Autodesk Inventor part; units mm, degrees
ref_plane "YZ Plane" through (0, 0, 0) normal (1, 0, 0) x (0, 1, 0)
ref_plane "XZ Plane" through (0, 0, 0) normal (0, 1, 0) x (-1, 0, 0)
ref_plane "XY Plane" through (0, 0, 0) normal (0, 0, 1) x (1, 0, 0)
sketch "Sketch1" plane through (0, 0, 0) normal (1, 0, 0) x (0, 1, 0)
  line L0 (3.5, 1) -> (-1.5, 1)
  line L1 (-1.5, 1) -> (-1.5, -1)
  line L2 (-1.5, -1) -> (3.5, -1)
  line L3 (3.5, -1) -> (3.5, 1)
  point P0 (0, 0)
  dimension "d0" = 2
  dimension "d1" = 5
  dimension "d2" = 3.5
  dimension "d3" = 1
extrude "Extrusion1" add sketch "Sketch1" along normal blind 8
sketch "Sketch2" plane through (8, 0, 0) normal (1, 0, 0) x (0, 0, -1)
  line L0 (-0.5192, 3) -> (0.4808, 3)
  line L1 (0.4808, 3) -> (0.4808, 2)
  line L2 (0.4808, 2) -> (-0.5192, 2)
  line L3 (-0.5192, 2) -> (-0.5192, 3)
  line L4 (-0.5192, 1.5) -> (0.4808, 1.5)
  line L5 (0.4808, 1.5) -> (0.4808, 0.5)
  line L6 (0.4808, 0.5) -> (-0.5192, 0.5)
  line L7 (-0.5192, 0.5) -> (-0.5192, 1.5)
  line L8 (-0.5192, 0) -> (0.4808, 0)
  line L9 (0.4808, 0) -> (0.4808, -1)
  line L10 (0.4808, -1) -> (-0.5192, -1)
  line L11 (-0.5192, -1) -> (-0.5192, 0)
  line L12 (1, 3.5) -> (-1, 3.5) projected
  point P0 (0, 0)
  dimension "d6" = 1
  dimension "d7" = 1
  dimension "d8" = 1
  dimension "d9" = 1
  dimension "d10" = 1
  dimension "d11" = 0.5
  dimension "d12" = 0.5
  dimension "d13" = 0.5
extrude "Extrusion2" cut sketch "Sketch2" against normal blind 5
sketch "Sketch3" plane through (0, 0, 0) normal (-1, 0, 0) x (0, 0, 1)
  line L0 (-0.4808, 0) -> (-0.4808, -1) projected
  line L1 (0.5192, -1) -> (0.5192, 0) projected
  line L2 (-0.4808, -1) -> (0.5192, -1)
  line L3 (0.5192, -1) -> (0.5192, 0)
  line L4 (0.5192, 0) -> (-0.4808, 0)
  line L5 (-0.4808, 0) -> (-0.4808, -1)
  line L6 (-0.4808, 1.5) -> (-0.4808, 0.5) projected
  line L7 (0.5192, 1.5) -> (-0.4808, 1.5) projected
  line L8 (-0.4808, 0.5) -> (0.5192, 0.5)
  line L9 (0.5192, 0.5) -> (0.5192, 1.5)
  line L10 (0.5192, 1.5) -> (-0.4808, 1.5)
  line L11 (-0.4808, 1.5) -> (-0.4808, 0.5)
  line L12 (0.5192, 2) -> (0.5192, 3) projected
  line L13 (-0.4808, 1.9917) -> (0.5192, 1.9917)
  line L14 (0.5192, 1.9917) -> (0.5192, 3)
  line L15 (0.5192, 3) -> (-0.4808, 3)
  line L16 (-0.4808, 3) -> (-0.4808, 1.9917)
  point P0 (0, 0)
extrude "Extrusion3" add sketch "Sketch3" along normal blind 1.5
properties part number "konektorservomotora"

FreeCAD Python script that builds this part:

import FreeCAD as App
import Part
import Sketcher

V = App.Vector
Q = App.Units.Quantity

doc = App.newDocument("Part")
body = doc.addObject("PartDesign::Body", "Body")

sketch1 = doc.addObject("Sketcher::SketchObject", "Sketch")
body.addObject(sketch1)
sketch1.AttachmentSupport = (doc.YZ_Plane, [""])
sketch1.MapMode = "FlatFace"
sketch1.addGeometry(Part.LineSegment(V(3.5, -1, 0), V(3.5, 1, 0)), False)
sketch1.addGeometry(Part.LineSegment(V(3.5, 1, 0), V(-1.5, 1, 0)), False)
sketch1.addGeometry(Part.LineSegment(V(-1.5, 1, 0), V(-1.5, -1, 0)), False)
sketch1.addGeometry(Part.LineSegment(V(-1.5, -1, 0), V(3.5, -1, 0)), False)
sketch1.addConstraint(Sketcher.Constraint("Coincident", 0, 2, 1, 1))
sketch1.addConstraint(Sketcher.Constraint("Coincident", 1, 2, 2, 1))
sketch1.addConstraint(Sketcher.Constraint("Coincident", 2, 2, 3, 1))
sketch1.addConstraint(Sketcher.Constraint("Coincident", 3, 2, 0, 1))
sketch1.addConstraint(Sketcher.Constraint("Vertical", 0))
sketch1.addConstraint(Sketcher.Constraint("Horizontal", 1))
sketch1.addConstraint(Sketcher.Constraint("Vertical", 2))
sketch1.addConstraint(Sketcher.Constraint("Horizontal", 3))
sketch1.addConstraint(Sketcher.Constraint("DistanceX", 1, 2, 1, 1, Q("5 mm")))
sketch1.addConstraint(Sketcher.Constraint("DistanceY", 0, 1, 0, 2, Q("2 mm")))
sketch1.addConstraint(Sketcher.Constraint("DistanceY", -1, 1, 0, 2, Q("1 mm")))
sketch1.addConstraint(Sketcher.Constraint("DistanceX", -1, 1, 0, 2, Q("3.5 mm")))
pad1 = doc.addObject("PartDesign::Pad", "Pad")
body.addObject(pad1)
pad1.Profile = sketch1
pad1.Length = 8

sketch2 = doc.addObject("Sketcher::SketchObject", "Sketch001")
body.addObject(sketch2)
sketch2.AttachmentSupport = (doc.YZ_Plane, [""])
sketch2.MapMode = "FlatFace"
sketch2.AttachmentOffset = App.Placement(V(0, 0, 8), App.Rotation())
sketch2.addGeometry(Part.LineSegment(V(3, -0.4808, 0), V(3, 0.5192, 0)), False)
sketch2.addGeometry(Part.LineSegment(V(3, 0.5192, 0), V(2, 0.5192, 0)), False)
sketch2.addGeometry(Part.LineSegment(V(2, 0.5192, 0), V(2, -0.4808, 0)), False)
sketch2.addGeometry(Part.LineSegment(V(2, -0.4808, 0), V(3, -0.4808, 0)), False)
sketch2.addGeometry(Part.LineSegment(V(1.5, -0.4808, 0), V(1.5, 0.5192, 0)), False)
sketch2.addGeometry(Part.LineSegment(V(1.5, 0.5192, 0), V(0.5, 0.5192, 0)), False)
sketch2.addGeometry(Part.LineSegment(V(0.5, 0.5192, 0), V(0.5, -0.4808, 0)), False)
sketch2.addGeometry(Part.LineSegment(V(0.5, -0.4808, 0), V(1.5, -0.4808, 0)), False)
sketch2.addGeometry(Part.LineSegment(V(0, -0.4808, 0), V(0, 0.5192, 0)), False)
sketch2.addGeometry(Part.LineSegment(V(0, 0.5192, 0), V(-1, 0.5192, 0)), False)
sketch2.addGeometry(Part.LineSegment(V(-1, 0.5192, 0), V(-1, -0.4808, 0)), False)
sketch2.addGeometry(Part.LineSegment(V(-1, -0.4808, 0), V(0, -0.4808, 0)), False)
sketch2.addConstraint(Sketcher.Constraint("Coincident", 0, 2, 1, 1))
sketch2.addConstraint(Sketcher.Constraint("Coincident", 1, 2, 2, 1))
sketch2.addConstraint(Sketcher.Constraint("Coincident", 2, 2, 3, 1))
sketch2.addConstraint(Sketcher.Constraint("Coincident", 3, 2, 0, 1))
sketch2.addConstraint(Sketcher.Constraint("Coincident", 4, 2, 5, 1))
sketch2.addConstraint(Sketcher.Constraint("Coincident", 5, 2, 6, 1))
sketch2.addConstraint(Sketcher.Constraint("Coincident", 6, 2, 7, 1))
sketch2.addConstraint(Sketcher.Constraint("Coincident", 7, 2, 4, 1))
sketch2.addConstraint(Sketcher.Constraint("Coincident", 8, 2, 9, 1))
sketch2.addConstraint(Sketcher.Constraint("Coincident", 9, 2, 10, 1))
sketch2.addConstraint(Sketcher.Constraint("Coincident", 10, 2, 11, 1))
sketch2.addConstraint(Sketcher.Constraint("Coincident", 11, 2, 8, 1))
sketch2.addConstraint(Sketcher.Constraint("Vertical", 0))
sketch2.addConstraint(Sketcher.Constraint("Horizontal", 1))
sketch2.addConstraint(Sketcher.Constraint("Vertical", 2))
sketch2.addConstraint(Sketcher.Constraint("Horizontal", 3))
sketch2.addConstraint(Sketcher.Constraint("Vertical", 4))
sketch2.addConstraint(Sketcher.Constraint("Horizontal", 5))
sketch2.addConstraint(Sketcher.Constraint("Vertical", 6))
sketch2.addConstraint(Sketcher.Constraint("Horizontal", 7))
sketch2.addConstraint(Sketcher.Constraint("Vertical", 8))
sketch2.addConstraint(Sketcher.Constraint("Horizontal", 9))
sketch2.addConstraint(Sketcher.Constraint("Vertical", 10))
sketch2.addConstraint(Sketcher.Constraint("Horizontal", 11))
sketch2.addConstraint(Sketcher.Constraint("PointOnObject", 8, 2, -2))
sketch2.addConstraint(Sketcher.Constraint("Horizontal", 1, 2, 4, 2))
sketch2.addConstraint(Sketcher.Constraint("Horizontal", 3, 2, 6, 2))
sketch2.addConstraint(Sketcher.Constraint("Horizontal", 5, 2, 8, 2))
sketch2.addConstraint(Sketcher.Constraint("Horizontal", 7, 2, 10, 2))
sketch2.addConstraint(Sketcher.Constraint("Equal", 3, 5))
sketch2.addConstraint(Sketcher.Constraint("Equal", 7, 9))
sketch2.addConstraint(Sketcher.Constraint("Equal", 11, 0))
sketch2.addConstraint(Sketcher.Constraint("DistanceX", 1, 2, 1, 1, Q("1 mm")))
sketch2.addConstraint(Sketcher.Constraint("DistanceX", -1, 1, 5, 2, Q("0.5 mm")))
sketch2.addConstraint(Sketcher.Constraint("DistanceX", 4, 2, 1, 2, Q("0.5 mm")))
sketch2.addConstraint(Sketcher.Constraint("DistanceY", -1, 1, 0, 2, Q("0.5192 mm")))
pocket1 = doc.addObject("PartDesign::Pocket", "Pocket")
body.addObject(pocket1)
pocket1.Profile = sketch2
pocket1.Length = 5

sketch3 = doc.addObject("Sketcher::SketchObject", "Sketch002")
body.addObject(sketch3)
sketch3.AttachmentSupport = (doc.YZ_Plane, [""])
sketch3.MapMode = "FlatFace"
sketch3.addGeometry(Part.LineSegment(V(0, 0.5192, 0), V(0, -0.4808, 0)), False)
sketch3.addGeometry(Part.LineSegment(V(0, -0.4808, 0), V(-1, -0.4808, 0)), False)
sketch3.addGeometry(Part.LineSegment(V(-1, -0.4808, 0), V(-1, 0.5192, 0)), False)
sketch3.addGeometry(Part.LineSegment(V(-1, 0.5192, 0), V(0, 0.5192, 0)), False)
sketch3.addGeometry(Part.LineSegment(V(1.5, 0.5192, 0), V(1.5, -0.4808, 0)), False)
sketch3.addGeometry(Part.LineSegment(V(1.5, -0.4808, 0), V(0.5, -0.4808, 0)), False)
sketch3.addGeometry(Part.LineSegment(V(0.5, -0.4808, 0), V(0.5, 0.5192, 0)), False)
sketch3.addGeometry(Part.LineSegment(V(0.5, 0.5192, 0), V(1.5, 0.5192, 0)), False)
sketch3.addGeometry(Part.LineSegment(V(1.9917, 0.5192, 0), V(3, 0.5192, 0)), False)
sketch3.addGeometry(Part.LineSegment(V(3, 0.5192, 0), V(3, -0.4808, 0)), False)
sketch3.addGeometry(Part.LineSegment(V(3, -0.4808, 0), V(1.9917, -0.4808, 0)), False)
sketch3.addGeometry(Part.LineSegment(V(1.9917, -0.4808, 0), V(1.9917, 0.5192, 0)), False)
sketch3.addConstraint(Sketcher.Constraint("Coincident", 0, 2, 1, 1))
sketch3.addConstraint(Sketcher.Constraint("Coincident", 1, 2, 2, 1))
sketch3.addConstraint(Sketcher.Constraint("Coincident", 2, 2, 3, 1))
sketch3.addConstraint(Sketcher.Constraint("Coincident", 3, 2, 0, 1))
sketch3.addConstraint(Sketcher.Constraint("Coincident", 4, 2, 5, 1))
sketch3.addConstraint(Sketcher.Constraint("Coincident", 5, 2, 6, 1))
sketch3.addConstraint(Sketcher.Constraint("Coincident", 6, 2, 7, 1))
sketch3.addConstraint(Sketcher.Constraint("Coincident", 7, 2, 4, 1))
sketch3.addConstraint(Sketcher.Constraint("Coincident", 8, 2, 9, 1))
sketch3.addConstraint(Sketcher.Constraint("Coincident", 9, 2, 10, 1))
sketch3.addConstraint(Sketcher.Constraint("Coincident", 10, 2, 11, 1))
sketch3.addConstraint(Sketcher.Constraint("Coincident", 11, 2, 8, 1))
sketch3.addConstraint(Sketcher.Constraint("Vertical", 0))
sketch3.addConstraint(Sketcher.Constraint("Horizontal", 1))
sketch3.addConstraint(Sketcher.Constraint("Vertical", 2))
sketch3.addConstraint(Sketcher.Constraint("Horizontal", 3))
sketch3.addConstraint(Sketcher.Constraint("Vertical", 4))
sketch3.addConstraint(Sketcher.Constraint("Horizontal", 5))
sketch3.addConstraint(Sketcher.Constraint("Vertical", 6))
sketch3.addConstraint(Sketcher.Constraint("Horizontal", 7))
sketch3.addConstraint(Sketcher.Constraint("Horizontal", 8))
sketch3.addConstraint(Sketcher.Constraint("Vertical", 9))
sketch3.addConstraint(Sketcher.Constraint("Horizontal", 10))
sketch3.addConstraint(Sketcher.Constraint("Vertical", 11))
sketch3.addConstraint(Sketcher.Constraint("PointOnObject", 0, 2, -2))
sketch3.addConstraint(Sketcher.Constraint("Horizontal", 1, 2, 4, 2))
sketch3.addConstraint(Sketcher.Constraint("Horizontal", 3, 2, 6, 2))
sketch3.addConstraint(Sketcher.Constraint("Horizontal", 7, 2, 8, 2))
sketch3.addConstraint(Sketcher.Constraint("Horizontal", 5, 2, 9, 2))
sketch3.addConstraint(Sketcher.Constraint("Equal", 3, 5))
sketch3.addConstraint(Sketcher.Constraint("Equal", 7, 0))
sketch3.addConstraint(Sketcher.Constraint("DistanceX", 1, 2, 1, 1, Q("1 mm")))
sketch3.addConstraint(Sketcher.Constraint("DistanceX", -1, 1, 8, 2, Q("3 mm")))
sketch3.addConstraint(Sketcher.Constraint("DistanceX", -1, 1, 4, 2, Q("1.5 mm")))
sketch3.addConstraint(Sketcher.Constraint("DistanceX", 8, 1, 8, 2, Q("1.0083 mm")))
sketch3.addConstraint(Sketcher.Constraint("DistanceY", 0, 2, -1, 1, Q("0.4808 mm")))
pad2 = doc.addObject("PartDesign::Pad", "Pad001")
body.addObject(pad2)
pad2.Profile = sketch3
pad2.Length = 1.5
pad2.Reversed = True

doc.recompute()
